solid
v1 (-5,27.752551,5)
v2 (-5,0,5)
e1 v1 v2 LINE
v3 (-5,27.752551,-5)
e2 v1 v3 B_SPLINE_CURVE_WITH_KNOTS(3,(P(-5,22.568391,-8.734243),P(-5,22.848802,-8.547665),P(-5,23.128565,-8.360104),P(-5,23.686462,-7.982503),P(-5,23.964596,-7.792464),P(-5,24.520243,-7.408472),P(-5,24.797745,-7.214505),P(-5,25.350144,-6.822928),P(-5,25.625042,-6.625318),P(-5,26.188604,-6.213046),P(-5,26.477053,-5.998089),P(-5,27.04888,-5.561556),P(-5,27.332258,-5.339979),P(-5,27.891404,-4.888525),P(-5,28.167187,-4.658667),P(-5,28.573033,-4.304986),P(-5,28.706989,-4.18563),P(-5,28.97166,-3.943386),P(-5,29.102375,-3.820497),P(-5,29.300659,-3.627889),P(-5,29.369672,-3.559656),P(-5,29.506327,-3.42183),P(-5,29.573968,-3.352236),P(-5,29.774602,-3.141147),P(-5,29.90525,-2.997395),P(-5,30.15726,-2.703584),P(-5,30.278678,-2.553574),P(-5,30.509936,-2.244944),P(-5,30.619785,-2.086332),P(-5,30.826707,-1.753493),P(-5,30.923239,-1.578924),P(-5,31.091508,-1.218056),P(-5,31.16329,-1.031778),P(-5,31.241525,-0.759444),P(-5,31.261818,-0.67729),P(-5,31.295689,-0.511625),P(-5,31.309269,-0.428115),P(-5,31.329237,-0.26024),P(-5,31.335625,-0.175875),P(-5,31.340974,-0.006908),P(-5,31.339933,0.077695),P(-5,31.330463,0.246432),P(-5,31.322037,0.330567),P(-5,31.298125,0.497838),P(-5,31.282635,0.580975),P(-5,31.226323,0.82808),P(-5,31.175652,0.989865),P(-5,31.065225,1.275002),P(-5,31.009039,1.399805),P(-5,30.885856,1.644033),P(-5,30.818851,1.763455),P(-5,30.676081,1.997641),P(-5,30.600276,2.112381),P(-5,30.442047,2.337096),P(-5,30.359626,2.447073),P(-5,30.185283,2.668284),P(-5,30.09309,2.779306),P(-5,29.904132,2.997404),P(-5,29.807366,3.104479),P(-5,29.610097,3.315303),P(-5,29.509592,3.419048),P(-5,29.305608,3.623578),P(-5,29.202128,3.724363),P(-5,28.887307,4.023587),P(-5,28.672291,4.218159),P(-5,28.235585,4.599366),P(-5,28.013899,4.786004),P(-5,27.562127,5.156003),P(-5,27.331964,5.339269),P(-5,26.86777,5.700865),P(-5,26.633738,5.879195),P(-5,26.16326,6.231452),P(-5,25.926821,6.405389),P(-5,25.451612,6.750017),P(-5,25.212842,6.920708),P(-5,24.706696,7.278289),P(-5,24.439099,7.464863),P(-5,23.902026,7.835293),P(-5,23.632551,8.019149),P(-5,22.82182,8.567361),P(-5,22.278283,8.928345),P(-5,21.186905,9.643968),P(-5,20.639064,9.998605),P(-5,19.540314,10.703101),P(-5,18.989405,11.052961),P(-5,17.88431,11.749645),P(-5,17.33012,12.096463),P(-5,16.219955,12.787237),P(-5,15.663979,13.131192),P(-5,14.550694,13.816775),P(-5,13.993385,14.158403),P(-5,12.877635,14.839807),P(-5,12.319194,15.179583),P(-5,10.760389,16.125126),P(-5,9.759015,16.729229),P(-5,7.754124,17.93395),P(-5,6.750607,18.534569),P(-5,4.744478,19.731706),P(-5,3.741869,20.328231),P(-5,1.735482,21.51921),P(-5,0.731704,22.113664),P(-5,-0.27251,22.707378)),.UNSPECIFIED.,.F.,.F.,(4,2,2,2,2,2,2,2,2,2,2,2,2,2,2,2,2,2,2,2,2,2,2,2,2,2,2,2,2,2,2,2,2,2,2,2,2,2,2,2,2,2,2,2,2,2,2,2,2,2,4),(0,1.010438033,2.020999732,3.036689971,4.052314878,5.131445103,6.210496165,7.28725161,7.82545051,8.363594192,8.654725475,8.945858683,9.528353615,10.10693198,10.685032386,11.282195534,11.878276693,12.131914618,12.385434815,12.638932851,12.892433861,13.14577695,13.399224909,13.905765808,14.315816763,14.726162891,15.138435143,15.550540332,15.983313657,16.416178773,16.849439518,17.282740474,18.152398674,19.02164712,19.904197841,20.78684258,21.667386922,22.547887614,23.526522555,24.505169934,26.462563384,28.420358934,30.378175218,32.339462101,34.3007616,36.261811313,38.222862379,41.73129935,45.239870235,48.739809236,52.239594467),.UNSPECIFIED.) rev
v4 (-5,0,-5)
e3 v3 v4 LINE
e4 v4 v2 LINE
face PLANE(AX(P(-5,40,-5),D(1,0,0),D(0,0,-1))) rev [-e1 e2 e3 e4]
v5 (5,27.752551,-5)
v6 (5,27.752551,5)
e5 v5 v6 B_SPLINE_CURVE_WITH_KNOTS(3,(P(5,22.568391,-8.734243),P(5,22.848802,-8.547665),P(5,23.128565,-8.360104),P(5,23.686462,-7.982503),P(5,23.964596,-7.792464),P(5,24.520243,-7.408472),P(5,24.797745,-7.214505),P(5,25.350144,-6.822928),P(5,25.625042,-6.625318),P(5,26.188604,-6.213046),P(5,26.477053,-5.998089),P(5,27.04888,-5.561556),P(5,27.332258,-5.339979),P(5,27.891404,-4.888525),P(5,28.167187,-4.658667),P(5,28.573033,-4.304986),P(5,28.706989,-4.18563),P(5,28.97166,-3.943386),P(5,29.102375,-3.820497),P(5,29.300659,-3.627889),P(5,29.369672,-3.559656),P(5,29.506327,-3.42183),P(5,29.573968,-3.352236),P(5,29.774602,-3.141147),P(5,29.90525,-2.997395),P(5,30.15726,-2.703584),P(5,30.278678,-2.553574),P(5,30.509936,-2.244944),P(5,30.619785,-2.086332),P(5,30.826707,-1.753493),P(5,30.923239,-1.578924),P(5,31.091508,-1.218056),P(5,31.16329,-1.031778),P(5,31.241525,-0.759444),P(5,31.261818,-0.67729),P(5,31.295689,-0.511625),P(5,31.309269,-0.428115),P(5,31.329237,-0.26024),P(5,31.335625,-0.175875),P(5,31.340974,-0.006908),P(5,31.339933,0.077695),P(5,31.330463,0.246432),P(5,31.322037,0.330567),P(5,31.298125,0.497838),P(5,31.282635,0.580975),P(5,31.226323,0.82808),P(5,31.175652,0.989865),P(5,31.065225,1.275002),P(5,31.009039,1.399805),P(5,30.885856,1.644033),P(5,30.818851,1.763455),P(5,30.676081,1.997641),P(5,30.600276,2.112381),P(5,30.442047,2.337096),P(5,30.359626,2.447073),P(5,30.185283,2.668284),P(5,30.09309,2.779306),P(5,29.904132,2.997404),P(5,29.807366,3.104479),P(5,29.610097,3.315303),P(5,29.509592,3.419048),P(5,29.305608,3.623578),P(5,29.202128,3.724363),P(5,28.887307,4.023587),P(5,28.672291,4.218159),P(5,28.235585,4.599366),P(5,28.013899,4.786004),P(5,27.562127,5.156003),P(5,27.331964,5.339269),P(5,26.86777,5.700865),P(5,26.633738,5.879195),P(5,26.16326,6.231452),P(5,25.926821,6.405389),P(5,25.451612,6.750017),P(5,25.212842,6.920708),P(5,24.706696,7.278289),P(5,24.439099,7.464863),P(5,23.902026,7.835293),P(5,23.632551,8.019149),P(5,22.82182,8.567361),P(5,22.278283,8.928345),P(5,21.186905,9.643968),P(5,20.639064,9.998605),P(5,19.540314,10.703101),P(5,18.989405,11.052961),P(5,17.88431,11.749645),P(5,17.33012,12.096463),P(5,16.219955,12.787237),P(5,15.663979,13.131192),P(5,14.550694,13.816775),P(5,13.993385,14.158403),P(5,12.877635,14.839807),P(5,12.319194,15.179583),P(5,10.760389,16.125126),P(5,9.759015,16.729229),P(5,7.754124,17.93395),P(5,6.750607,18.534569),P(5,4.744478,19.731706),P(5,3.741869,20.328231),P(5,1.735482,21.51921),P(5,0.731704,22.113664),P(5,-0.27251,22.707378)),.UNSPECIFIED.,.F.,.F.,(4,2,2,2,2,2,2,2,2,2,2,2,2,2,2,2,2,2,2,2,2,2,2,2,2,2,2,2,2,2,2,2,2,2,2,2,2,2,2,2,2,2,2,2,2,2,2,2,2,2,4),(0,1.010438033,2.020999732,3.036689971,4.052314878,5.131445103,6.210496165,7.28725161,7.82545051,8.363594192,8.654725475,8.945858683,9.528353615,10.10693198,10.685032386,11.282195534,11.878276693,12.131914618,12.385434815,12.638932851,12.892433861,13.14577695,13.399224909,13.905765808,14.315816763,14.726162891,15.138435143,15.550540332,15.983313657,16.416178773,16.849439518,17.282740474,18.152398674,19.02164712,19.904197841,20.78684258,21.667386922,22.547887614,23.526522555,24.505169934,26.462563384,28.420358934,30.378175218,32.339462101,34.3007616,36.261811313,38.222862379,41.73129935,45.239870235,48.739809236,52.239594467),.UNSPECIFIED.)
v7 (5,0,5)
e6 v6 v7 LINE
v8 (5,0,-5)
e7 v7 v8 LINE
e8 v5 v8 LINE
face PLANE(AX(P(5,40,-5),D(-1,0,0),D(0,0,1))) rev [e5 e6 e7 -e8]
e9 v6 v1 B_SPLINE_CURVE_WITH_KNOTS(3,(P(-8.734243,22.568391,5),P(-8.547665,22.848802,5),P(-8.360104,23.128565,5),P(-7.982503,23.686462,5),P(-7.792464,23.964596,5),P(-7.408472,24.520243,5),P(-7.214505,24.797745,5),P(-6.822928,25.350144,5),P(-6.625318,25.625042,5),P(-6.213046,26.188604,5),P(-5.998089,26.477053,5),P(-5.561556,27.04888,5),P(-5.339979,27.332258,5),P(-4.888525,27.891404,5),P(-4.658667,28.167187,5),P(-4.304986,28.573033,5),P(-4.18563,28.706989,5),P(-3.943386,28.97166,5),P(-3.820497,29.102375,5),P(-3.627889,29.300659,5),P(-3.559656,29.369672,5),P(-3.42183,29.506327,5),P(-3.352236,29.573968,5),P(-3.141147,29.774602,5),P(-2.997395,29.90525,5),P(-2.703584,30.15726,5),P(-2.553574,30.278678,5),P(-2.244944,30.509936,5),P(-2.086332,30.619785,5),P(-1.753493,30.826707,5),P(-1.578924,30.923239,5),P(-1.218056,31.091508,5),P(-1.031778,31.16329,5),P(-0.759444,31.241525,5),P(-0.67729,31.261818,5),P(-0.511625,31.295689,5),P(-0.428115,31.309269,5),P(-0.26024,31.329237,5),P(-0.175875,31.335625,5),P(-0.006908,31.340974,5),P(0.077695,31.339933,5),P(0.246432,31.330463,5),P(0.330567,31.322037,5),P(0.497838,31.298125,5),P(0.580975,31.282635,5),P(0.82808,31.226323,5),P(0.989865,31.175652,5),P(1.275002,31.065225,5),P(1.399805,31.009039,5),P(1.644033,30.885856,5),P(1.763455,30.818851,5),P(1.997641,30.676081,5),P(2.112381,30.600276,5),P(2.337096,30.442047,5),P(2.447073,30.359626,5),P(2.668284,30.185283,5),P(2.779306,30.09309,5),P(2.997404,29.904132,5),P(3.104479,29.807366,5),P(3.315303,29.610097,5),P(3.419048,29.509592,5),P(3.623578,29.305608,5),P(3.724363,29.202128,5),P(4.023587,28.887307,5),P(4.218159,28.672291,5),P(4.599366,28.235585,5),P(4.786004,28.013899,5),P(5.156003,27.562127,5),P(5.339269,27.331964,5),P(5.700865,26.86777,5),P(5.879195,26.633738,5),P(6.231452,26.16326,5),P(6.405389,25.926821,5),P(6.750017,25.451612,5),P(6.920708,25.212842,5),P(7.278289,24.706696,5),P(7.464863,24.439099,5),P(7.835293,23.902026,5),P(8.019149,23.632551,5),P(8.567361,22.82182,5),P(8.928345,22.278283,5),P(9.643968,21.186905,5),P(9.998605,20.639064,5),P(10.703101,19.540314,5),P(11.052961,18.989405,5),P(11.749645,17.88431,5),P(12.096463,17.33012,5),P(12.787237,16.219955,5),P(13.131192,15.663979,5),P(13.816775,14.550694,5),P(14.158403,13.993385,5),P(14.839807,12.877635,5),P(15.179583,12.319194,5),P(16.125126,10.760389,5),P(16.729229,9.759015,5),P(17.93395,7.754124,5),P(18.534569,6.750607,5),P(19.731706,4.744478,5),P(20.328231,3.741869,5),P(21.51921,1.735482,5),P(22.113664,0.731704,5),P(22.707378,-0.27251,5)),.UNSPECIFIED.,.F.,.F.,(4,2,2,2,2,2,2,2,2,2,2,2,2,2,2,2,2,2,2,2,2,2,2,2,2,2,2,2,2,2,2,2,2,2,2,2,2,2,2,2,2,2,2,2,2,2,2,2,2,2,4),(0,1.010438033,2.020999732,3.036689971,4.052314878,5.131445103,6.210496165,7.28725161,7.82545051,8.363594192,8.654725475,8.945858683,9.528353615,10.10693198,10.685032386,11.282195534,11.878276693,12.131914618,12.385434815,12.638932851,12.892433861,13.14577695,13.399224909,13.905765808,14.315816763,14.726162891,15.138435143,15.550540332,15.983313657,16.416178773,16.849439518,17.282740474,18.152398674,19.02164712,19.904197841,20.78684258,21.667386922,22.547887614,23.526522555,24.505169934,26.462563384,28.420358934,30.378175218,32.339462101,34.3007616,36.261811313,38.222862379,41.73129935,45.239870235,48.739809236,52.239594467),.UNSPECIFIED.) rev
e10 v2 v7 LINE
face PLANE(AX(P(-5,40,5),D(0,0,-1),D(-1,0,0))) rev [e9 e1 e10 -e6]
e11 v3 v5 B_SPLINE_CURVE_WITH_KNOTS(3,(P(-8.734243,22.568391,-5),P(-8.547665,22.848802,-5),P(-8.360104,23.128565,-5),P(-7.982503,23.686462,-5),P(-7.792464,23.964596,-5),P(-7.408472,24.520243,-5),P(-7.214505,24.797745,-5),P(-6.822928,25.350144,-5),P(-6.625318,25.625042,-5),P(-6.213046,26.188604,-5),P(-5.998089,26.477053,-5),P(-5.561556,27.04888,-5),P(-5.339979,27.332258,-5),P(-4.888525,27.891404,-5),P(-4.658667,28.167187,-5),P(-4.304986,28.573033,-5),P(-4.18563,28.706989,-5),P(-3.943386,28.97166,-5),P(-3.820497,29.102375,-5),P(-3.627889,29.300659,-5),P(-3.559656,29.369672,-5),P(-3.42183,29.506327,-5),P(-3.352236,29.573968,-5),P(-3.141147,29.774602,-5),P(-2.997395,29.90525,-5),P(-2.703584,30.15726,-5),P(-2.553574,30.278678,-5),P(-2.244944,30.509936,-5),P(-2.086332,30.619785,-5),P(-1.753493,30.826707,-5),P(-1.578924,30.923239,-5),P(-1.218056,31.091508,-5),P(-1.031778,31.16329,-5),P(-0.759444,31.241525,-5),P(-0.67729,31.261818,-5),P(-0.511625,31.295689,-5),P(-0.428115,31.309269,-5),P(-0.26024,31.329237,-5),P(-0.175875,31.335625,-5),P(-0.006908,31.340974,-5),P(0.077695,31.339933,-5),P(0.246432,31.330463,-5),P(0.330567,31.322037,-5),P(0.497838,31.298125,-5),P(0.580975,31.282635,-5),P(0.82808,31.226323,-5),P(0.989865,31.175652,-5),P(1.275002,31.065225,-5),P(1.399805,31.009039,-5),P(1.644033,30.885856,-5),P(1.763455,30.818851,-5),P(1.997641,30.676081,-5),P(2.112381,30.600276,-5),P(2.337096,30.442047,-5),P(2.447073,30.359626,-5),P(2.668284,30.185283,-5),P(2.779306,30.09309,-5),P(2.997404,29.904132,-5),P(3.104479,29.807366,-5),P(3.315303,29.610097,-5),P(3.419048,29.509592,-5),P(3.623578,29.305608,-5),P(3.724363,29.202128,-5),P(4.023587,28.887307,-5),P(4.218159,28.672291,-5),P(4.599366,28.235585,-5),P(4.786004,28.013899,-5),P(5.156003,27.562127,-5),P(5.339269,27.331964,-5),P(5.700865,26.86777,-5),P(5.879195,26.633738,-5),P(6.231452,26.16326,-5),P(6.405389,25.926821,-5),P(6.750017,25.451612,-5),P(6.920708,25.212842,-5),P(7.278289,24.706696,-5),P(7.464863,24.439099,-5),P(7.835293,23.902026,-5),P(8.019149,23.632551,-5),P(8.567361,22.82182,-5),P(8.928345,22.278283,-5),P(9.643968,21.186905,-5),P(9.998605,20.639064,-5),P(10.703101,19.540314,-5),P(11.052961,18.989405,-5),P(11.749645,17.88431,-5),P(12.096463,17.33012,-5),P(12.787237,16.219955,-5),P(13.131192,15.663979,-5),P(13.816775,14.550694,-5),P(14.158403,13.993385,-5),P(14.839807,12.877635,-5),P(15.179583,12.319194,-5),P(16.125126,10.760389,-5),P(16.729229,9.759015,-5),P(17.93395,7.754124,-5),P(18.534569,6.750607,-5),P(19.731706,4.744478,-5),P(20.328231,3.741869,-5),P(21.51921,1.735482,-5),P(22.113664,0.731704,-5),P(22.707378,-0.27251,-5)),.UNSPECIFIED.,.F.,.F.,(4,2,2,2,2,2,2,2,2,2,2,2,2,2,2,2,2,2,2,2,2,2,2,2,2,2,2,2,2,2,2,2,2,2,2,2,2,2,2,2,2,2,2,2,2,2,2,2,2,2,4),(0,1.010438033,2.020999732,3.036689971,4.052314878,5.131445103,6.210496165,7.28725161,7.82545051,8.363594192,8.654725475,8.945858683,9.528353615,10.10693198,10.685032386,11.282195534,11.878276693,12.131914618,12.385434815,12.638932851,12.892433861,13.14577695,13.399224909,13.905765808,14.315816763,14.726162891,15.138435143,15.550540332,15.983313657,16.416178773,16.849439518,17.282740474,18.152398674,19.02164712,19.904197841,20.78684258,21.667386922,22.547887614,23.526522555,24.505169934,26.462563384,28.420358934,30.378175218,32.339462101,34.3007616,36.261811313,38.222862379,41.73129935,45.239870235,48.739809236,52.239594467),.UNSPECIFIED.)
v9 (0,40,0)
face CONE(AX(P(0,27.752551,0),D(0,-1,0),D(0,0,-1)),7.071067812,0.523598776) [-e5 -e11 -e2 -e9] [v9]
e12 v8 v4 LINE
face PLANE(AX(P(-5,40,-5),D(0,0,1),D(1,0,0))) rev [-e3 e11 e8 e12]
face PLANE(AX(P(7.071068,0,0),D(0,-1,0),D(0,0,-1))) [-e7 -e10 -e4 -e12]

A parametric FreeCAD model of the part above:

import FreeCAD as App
import Part
import Sketcher
from FreeCAD import Vector
Q = App.Units.Quantity


def add_polygon(sketch, points):
    """Adds a closed chain of lines whose ends are joined by coincident constraints."""
    first, n = sketch.GeometryCount, len(points)
    for a, b in zip(points, points[1:] + points[:1]):
        sketch.addGeometry(Part.LineSegment(App.Vector(*a, 0), App.Vector(*b, 0)), False)
    for i in range(n):
        sketch.addConstraint(Sketcher.Constraint("Coincident", first + i, 2, first + (i + 1) % n, 1))

doc = App.newDocument("Part")
params = doc.addObject("Spreadsheet::Sheet", "Params")
for row, (alias, value) in enumerate([
    ("sketch1_height", "40 mm"),
    ("revolution_angle", "360 deg"),
    ("sketch2_width", "10 mm"),
], start=1):
    params.set(f"A{row}", alias)
    params.set(f"B{row}", "=" + value)
    params.setAlias(f"B{row}", alias)

body = doc.addObject("PartDesign::Body", "Body")

# Sketch on XY plane
sketch1 = doc.addObject("Sketcher::SketchObject", "Sketch")
body.addObject(sketch1)
sketch1.AttachmentSupport = (doc.XY_Plane, [""])
sketch1.MapMode = "FlatFace"
add_polygon(sketch1, [(0, 40), (0, 0), (7, 0), (7, 28)])  # lines 0-3
sketch1.addConstraint([
    Sketcher.Constraint("Vertical", 0),
    Sketcher.Constraint("Horizontal", 1),
    Sketcher.Constraint("Vertical", 2),
    Sketcher.Constraint("Coincident", 0, 2, -1, 1),
    Sketcher.Constraint("DistanceY", 0, 2, 0, 1, Q("40 mm")),
    Sketcher.Constraint("Angle", 3, Q("120 deg")),
    Sketcher.Constraint("DistanceY", 2, 1, 2, 2, Q("27.752551 mm")),
])
sketch1.setExpression("Constraints[8]", "Params.sketch1_height")
revolution = doc.addObject("PartDesign::Revolution", "Revolution")
body.addObject(revolution)
revolution.Profile = sketch1
revolution.ReferenceAxis = (sketch1, ["V_Axis"])
revolution.setExpression("Angle", "Params.revolution_angle")

# Sketch on XZ plane
sketch2 = doc.addObject("Sketcher::SketchObject", "Sketch001")
body.addObject(sketch2)
sketch2.AttachmentSupport = (doc.XZ_Plane, [""])
sketch2.MapMode = "FlatFace"
add_polygon(sketch2, [(-13, -13), (-13, 13), (13, 13), (13, -13)])  # lines 0-3
add_polygon(sketch2, [(5, 5), (-5, 5), (-5, -5), (5, -5)])  # lines 4-7
sketch2.addConstraint([
    Sketcher.Constraint("Vertical", 0),
    Sketcher.Constraint("Horizontal", 1),
    Sketcher.Constraint("Vertical", 2),
    Sketcher.Constraint("Horizontal", 3),
    Sketcher.Constraint("Horizontal", 4),
    Sketcher.Constraint("Vertical", 5),
    Sketcher.Constraint("Horizontal", 6),
    Sketcher.Constraint("Vertical", 7),
    Sketcher.Constraint("Symmetric", 0, 2, 2, 2, -1, 1),
    Sketcher.Constraint("Symmetric", 4, 2, 6, 2, -1, 1),
    Sketcher.Constraint("Equal", 3, 0),
    Sketcher.Constraint("Equal", 6, 5),
    Sketcher.Constraint("DistanceX", 4, 2, 4, 1, Q("10 mm")),
    Sketcher.Constraint("DistanceX", 1, 1, 1, 2, Q("25.086 mm")),
])
sketch2.setExpression("Constraints[20]", "Params.sketch2_width")
pocket1 = doc.addObject("PartDesign::Pocket", "Pocket")
body.addObject(pocket1)
pocket1.Profile = sketch2
pocket1.Type = "ThroughAll"

doc.recompute()
